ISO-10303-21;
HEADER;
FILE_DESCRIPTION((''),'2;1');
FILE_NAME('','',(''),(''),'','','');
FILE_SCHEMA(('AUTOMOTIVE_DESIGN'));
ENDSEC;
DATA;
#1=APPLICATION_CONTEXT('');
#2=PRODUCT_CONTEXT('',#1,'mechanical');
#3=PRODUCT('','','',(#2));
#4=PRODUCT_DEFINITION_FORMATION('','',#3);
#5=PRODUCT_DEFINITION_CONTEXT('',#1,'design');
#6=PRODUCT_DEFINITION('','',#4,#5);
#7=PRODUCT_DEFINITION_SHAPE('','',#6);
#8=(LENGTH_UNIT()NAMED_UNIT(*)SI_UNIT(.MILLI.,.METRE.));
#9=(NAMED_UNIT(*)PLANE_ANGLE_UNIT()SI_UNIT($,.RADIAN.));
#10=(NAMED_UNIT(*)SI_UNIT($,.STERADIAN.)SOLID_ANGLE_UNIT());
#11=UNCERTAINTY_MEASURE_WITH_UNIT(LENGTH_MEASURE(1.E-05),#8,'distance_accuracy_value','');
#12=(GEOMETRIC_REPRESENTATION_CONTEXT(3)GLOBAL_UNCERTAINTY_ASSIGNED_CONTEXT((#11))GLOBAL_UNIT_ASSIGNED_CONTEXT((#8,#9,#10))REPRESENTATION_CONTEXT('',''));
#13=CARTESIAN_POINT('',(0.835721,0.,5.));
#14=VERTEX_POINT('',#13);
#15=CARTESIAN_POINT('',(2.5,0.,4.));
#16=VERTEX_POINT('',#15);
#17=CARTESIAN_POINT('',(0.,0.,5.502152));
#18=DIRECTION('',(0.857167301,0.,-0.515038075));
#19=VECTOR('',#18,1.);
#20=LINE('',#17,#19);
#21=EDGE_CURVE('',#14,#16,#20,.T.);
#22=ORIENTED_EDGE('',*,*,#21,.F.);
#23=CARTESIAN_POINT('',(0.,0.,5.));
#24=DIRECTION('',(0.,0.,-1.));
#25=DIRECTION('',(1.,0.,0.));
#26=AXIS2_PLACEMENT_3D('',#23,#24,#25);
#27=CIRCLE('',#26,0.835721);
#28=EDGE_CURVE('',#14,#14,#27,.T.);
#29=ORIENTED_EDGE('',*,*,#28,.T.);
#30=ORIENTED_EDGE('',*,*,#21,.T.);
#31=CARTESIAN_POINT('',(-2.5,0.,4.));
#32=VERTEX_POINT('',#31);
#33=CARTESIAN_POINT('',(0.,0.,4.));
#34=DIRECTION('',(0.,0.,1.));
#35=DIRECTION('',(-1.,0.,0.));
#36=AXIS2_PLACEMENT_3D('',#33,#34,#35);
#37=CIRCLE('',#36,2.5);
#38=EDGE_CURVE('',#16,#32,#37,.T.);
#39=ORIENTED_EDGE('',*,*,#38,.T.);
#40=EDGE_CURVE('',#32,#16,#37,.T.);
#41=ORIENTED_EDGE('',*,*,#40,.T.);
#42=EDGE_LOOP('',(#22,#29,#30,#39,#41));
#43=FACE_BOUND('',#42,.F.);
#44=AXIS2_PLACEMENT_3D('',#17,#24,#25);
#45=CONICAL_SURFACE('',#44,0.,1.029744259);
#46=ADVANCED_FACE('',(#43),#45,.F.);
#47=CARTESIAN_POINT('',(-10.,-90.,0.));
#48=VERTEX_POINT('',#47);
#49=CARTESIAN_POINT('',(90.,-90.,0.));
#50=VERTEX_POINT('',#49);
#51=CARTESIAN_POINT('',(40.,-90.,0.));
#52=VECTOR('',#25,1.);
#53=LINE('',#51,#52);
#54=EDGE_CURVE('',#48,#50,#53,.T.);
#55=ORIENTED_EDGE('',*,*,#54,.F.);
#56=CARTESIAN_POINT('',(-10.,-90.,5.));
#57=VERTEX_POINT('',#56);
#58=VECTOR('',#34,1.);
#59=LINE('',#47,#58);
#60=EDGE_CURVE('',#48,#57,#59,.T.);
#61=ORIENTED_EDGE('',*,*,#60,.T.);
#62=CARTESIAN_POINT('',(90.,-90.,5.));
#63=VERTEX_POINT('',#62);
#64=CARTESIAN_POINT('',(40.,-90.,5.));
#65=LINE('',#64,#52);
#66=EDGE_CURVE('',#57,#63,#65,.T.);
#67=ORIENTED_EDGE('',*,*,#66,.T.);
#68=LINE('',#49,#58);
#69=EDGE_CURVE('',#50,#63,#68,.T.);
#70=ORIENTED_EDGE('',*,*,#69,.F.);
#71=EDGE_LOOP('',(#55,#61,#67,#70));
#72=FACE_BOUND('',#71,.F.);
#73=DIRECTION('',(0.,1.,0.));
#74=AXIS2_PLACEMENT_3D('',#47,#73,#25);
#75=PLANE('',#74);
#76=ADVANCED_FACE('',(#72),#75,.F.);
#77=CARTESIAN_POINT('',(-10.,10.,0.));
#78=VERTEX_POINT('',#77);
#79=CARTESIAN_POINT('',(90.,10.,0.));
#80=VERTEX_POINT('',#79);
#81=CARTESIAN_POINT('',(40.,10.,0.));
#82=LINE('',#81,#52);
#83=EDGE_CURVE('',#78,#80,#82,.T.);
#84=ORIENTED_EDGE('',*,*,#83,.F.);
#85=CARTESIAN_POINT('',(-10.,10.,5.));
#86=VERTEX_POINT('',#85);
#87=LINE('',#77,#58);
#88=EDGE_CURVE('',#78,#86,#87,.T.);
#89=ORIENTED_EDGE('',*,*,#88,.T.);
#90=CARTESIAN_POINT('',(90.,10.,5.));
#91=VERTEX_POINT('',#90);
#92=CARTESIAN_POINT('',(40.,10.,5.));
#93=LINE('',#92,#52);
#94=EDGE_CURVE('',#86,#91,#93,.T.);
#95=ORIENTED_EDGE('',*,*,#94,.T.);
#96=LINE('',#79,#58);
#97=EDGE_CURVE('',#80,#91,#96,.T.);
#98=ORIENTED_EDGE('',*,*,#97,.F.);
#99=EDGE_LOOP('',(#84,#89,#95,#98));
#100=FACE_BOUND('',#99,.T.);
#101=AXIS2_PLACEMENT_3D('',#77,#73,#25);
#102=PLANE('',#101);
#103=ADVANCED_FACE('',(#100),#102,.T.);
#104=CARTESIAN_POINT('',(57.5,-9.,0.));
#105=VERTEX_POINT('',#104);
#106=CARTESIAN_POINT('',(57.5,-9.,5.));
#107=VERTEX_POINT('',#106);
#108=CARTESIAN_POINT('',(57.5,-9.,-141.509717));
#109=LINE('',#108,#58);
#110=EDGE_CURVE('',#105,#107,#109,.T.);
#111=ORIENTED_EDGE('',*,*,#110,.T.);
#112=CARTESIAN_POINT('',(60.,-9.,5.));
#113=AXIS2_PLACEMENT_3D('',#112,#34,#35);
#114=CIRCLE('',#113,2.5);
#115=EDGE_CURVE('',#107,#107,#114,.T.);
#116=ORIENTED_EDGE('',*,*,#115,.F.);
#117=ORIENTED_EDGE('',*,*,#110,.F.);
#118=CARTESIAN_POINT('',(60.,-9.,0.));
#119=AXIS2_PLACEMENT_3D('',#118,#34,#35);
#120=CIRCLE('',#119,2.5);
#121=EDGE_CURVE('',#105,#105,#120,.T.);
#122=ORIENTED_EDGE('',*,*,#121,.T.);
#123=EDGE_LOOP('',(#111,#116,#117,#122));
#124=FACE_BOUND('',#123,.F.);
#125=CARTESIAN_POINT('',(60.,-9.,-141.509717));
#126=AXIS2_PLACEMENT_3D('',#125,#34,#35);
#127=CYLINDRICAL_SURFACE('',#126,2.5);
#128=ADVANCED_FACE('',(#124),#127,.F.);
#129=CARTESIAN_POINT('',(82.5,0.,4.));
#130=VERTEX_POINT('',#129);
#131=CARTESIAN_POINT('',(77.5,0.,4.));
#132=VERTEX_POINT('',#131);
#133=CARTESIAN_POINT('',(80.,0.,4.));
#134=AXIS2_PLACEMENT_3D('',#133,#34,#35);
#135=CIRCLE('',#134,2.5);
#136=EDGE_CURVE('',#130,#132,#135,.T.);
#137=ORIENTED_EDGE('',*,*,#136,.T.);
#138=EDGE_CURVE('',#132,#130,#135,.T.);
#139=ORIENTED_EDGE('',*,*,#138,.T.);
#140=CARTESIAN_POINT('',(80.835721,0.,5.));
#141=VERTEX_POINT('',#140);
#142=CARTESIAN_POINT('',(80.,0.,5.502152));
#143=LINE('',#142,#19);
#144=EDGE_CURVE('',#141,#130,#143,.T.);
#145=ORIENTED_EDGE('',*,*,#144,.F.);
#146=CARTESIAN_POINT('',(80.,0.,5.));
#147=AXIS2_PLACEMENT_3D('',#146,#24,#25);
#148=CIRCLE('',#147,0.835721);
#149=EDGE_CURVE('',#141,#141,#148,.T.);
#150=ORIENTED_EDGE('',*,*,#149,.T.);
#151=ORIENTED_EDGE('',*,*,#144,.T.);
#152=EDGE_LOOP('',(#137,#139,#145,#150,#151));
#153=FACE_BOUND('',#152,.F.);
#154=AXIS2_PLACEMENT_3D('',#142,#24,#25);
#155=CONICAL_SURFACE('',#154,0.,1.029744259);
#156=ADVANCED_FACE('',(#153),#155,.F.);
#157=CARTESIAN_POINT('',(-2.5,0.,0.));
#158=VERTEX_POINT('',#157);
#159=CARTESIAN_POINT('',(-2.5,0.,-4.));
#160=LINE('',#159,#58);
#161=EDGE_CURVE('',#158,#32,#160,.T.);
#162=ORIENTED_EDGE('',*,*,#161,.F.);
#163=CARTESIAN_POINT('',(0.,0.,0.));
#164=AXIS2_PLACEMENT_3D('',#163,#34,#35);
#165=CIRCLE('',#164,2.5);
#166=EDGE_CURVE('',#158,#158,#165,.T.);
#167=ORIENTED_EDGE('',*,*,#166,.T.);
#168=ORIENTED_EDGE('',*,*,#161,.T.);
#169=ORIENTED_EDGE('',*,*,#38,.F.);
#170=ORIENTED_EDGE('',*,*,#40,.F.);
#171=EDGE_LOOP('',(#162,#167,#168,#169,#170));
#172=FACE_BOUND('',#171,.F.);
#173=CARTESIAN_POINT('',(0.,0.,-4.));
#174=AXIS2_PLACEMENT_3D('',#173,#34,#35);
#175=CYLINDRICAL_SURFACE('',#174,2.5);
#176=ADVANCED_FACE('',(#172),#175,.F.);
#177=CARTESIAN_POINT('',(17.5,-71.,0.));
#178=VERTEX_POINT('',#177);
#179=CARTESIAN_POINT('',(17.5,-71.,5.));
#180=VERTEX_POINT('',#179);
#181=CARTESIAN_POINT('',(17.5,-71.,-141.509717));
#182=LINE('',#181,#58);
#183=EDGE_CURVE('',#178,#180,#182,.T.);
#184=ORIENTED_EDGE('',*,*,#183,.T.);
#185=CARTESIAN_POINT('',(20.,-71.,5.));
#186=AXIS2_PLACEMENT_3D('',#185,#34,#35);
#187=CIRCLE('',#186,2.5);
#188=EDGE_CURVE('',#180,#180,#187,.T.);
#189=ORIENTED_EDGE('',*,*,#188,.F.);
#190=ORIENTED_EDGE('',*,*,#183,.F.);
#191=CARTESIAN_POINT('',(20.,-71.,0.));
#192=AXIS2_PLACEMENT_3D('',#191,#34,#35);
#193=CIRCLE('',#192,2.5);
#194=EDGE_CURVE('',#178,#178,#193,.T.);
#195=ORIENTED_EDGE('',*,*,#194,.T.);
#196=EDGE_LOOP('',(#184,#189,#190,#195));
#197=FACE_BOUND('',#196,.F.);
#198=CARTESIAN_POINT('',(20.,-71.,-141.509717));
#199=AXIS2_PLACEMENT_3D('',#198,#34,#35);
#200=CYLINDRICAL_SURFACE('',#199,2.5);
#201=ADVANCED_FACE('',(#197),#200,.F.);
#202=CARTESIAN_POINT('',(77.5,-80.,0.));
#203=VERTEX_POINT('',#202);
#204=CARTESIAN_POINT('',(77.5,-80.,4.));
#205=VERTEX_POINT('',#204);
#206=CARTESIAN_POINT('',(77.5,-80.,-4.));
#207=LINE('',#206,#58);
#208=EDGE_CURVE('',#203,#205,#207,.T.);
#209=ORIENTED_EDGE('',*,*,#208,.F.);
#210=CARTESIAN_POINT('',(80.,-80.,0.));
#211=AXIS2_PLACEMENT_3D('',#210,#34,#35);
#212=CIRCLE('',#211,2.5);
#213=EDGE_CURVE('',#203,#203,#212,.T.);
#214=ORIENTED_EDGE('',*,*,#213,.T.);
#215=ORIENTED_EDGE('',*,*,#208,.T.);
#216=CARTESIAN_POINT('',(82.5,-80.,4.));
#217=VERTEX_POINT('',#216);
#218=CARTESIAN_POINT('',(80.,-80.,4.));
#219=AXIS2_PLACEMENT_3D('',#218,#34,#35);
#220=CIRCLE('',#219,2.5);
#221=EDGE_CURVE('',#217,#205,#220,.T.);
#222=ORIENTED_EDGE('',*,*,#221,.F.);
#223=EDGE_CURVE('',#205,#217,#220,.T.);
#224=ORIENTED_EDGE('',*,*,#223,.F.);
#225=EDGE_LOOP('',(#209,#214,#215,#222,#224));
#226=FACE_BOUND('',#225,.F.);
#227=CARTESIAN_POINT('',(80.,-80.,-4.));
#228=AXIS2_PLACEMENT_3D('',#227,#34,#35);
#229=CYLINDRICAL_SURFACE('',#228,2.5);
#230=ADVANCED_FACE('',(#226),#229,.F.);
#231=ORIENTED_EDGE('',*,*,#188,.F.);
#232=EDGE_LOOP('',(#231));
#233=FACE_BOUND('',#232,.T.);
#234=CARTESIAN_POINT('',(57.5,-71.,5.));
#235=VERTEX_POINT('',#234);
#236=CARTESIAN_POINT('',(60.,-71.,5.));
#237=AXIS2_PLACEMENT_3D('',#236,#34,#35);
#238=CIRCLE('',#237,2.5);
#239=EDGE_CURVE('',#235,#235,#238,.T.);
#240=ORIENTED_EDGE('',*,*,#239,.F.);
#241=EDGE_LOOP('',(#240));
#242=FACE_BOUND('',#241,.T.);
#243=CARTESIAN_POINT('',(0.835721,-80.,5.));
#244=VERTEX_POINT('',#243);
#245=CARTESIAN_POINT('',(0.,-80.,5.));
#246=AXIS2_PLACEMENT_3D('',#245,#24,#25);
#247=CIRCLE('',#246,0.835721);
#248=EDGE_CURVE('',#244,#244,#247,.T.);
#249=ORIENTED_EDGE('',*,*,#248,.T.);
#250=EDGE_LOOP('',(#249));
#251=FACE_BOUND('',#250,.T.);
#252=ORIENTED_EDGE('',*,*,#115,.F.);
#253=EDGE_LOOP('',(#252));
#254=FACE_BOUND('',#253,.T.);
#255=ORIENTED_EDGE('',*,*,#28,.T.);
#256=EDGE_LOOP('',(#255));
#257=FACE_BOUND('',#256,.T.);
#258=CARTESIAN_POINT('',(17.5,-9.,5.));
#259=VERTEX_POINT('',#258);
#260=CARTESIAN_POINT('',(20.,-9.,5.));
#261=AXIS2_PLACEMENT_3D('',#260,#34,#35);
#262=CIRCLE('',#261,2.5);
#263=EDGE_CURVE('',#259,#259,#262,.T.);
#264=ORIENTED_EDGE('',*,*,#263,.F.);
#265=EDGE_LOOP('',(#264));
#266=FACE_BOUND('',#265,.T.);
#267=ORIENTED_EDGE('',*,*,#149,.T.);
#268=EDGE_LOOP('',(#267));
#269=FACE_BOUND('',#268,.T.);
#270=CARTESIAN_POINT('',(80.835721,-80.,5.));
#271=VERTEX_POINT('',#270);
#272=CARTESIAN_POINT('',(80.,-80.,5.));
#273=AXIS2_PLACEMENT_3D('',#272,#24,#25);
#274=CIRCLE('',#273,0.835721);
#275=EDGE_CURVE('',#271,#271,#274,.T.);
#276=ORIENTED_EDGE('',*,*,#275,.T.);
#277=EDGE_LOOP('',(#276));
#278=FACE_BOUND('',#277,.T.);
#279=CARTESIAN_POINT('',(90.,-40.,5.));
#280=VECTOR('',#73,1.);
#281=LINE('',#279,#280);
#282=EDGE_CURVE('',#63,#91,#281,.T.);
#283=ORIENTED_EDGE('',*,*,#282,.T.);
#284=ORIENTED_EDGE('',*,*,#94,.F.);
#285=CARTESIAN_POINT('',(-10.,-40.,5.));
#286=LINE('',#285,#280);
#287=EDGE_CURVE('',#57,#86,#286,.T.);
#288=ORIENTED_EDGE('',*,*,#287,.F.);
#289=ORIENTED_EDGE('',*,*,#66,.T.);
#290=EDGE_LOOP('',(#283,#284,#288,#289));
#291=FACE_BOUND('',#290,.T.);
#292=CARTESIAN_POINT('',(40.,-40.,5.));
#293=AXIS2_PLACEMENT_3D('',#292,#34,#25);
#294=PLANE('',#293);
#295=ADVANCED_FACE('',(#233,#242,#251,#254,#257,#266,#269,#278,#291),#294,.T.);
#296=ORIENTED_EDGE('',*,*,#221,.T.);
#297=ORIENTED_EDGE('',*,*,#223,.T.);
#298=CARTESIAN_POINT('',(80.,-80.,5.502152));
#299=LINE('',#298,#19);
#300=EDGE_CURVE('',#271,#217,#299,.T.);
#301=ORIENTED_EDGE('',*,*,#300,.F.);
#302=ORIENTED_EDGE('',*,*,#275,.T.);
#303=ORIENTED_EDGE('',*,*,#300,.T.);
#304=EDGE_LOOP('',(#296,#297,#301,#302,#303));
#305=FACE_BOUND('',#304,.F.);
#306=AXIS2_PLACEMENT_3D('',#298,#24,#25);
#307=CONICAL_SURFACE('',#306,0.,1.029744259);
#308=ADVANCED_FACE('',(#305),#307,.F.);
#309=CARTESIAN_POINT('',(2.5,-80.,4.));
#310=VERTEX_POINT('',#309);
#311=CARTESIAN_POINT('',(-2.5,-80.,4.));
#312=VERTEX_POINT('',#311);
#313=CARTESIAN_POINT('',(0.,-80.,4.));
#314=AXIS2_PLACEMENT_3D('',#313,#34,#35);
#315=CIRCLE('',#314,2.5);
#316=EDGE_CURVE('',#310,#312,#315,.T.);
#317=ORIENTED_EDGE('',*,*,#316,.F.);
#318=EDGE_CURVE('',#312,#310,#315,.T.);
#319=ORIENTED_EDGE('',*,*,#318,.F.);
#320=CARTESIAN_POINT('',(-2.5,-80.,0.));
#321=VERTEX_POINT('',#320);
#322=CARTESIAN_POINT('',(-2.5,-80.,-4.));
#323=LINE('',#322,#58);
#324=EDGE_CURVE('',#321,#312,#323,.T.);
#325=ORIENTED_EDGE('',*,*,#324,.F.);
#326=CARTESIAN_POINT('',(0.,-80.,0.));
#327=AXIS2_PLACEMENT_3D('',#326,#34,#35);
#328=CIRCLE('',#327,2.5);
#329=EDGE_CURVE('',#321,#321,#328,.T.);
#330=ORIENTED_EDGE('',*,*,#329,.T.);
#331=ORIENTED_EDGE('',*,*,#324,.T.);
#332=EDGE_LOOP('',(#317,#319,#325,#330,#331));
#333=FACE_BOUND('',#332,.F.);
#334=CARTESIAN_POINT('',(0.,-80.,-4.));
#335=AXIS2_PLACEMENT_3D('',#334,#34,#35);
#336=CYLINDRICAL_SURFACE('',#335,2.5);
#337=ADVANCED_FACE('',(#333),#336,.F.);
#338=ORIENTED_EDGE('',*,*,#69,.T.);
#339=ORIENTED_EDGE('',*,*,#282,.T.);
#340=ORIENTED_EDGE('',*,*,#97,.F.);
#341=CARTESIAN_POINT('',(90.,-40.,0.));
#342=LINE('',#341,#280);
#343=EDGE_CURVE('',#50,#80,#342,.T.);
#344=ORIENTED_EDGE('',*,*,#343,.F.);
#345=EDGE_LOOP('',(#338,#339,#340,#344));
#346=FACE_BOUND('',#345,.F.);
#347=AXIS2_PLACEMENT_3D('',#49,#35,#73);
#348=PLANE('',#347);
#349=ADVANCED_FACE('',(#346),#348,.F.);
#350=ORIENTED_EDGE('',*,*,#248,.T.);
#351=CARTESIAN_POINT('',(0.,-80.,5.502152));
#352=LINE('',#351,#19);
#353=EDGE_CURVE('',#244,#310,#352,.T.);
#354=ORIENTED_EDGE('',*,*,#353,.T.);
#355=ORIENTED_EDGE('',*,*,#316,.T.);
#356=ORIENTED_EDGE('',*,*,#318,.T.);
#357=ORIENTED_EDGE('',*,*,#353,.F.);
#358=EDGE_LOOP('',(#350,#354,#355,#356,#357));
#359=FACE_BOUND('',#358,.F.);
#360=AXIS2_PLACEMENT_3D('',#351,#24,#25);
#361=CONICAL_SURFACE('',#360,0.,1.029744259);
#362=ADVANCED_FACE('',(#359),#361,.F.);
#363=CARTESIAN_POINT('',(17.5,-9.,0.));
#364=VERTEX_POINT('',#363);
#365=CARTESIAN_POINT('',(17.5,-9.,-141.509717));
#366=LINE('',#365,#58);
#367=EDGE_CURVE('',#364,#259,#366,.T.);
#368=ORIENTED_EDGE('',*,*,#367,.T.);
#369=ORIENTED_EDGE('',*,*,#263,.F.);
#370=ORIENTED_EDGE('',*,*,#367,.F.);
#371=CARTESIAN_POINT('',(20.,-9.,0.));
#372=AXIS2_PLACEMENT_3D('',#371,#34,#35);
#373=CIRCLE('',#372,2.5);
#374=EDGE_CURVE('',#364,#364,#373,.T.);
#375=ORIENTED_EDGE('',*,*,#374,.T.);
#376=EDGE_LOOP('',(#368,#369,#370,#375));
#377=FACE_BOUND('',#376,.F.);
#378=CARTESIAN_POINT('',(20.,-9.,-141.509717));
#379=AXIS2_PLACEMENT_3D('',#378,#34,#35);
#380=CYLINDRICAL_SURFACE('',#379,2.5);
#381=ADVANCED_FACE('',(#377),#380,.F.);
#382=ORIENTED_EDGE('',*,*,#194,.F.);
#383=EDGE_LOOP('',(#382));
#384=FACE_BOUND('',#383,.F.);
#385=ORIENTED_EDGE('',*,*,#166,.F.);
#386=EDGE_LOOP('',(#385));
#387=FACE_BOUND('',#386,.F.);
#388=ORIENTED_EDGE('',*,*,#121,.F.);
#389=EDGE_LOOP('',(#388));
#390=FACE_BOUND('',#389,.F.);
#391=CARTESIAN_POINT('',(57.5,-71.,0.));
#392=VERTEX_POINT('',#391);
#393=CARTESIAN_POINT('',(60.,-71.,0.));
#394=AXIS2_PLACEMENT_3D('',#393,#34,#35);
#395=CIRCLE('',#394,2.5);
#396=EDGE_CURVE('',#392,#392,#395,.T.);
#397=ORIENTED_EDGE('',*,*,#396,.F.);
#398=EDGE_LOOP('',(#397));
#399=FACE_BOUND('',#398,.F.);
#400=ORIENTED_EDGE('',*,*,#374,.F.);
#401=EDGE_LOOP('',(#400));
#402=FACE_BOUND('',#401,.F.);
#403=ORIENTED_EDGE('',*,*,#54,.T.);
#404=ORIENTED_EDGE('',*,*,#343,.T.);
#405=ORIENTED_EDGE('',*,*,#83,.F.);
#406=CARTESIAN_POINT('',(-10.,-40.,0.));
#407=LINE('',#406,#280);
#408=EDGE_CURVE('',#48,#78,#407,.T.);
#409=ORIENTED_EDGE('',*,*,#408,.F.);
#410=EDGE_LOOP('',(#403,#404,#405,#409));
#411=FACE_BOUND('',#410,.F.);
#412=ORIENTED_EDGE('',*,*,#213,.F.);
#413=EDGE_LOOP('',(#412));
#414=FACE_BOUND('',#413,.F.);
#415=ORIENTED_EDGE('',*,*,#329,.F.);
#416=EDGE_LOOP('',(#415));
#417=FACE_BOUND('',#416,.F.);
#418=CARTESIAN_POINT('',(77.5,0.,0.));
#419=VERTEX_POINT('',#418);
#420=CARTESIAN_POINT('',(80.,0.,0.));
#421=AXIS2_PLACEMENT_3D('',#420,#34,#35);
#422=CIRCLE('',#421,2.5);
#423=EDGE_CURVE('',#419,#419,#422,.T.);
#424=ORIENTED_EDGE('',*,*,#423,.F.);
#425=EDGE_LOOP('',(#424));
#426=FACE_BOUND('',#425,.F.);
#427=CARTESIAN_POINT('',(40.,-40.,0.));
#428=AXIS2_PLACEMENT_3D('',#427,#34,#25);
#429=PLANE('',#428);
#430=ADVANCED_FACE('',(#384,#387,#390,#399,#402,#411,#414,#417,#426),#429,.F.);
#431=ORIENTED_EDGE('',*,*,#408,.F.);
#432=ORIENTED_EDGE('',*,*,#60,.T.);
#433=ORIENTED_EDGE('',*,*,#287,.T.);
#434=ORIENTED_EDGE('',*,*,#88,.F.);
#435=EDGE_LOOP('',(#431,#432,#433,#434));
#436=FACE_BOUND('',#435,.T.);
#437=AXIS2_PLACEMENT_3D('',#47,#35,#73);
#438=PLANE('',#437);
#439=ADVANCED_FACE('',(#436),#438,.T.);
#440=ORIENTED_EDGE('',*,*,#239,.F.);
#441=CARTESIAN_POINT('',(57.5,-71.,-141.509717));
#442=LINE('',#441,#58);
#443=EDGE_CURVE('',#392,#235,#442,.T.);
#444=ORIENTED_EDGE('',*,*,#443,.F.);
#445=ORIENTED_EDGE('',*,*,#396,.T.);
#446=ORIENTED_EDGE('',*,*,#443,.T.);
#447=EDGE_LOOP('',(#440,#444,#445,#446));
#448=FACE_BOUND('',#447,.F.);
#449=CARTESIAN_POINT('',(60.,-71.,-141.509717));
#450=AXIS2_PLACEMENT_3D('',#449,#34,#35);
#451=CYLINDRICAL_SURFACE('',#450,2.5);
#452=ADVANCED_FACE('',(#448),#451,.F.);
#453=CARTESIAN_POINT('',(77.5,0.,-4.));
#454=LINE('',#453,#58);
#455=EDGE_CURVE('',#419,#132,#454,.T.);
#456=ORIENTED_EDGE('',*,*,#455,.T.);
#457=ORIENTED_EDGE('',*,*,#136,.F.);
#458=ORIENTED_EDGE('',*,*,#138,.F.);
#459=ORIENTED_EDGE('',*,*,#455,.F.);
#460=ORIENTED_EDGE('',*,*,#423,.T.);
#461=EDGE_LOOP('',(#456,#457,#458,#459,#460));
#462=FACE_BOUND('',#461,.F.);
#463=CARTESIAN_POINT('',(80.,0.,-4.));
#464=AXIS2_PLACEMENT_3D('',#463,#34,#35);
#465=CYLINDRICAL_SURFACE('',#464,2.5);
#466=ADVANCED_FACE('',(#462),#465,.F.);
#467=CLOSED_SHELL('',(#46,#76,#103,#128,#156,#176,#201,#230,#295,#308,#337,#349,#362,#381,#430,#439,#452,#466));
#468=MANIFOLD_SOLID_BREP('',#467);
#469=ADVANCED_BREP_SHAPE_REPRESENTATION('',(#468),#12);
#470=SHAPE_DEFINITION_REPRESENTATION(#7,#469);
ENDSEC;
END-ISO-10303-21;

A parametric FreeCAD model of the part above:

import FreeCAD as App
import Part
import Sketcher

doc = App.newDocument("Part")
body = doc.addObject("PartDesign::Body", "Body")

# Sketch on XY plane
sketch1 = doc.addObject("Sketcher::SketchObject", "Sketch")
body.addObject(sketch1)
sketch1.AttachmentSupport = (doc.XY_Plane, [""])
sketch1.MapMode = "FlatFace"
sketch1.addGeometry(Part.LineSegment(App.Vector(-10, 10, 0), App.Vector(-10, -90, 0)), False)
sketch1.addGeometry(Part.LineSegment(App.Vector(-10, -90, 0), App.Vector(90, -90, 0)), False)
sketch1.addGeometry(Part.LineSegment(App.Vector(90, -90, 0), App.Vector(90, 10, 0)), False)
sketch1.addGeometry(Part.LineSegment(App.Vector(90, 10, 0), App.Vector(-10, 10, 0)), False)
sketch1.addConstraint(Sketcher.Constraint("Coincident", 0, 2, 1, 1))
sketch1.addConstraint(Sketcher.Constraint("Coincident", 1, 2, 2, 1))
sketch1.addConstraint(Sketcher.Constraint("Coincident", 2, 2, 3, 1))
sketch1.addConstraint(Sketcher.Constraint("Coincident", 3, 2, 0, 1))
sketch1.addConstraint(Sketcher.Constraint("Vertical", 0))
sketch1.addConstraint(Sketcher.Constraint("Horizontal", 1))
sketch1.addConstraint(Sketcher.Constraint("Vertical", 2))
sketch1.addConstraint(Sketcher.Constraint("Horizontal", 3))
sketch1.addConstraint(Sketcher.Constraint("Equal", 3, 0))
sketch1.addConstraint(Sketcher.Constraint("DistanceX", 1, 1, 1, 2, 100.0))
sketch1.addConstraint(Sketcher.Constraint("DistanceX", 0, 2, -1, 1, 10.0))
sketch1.addConstraint(Sketcher.Constraint("DistanceY", 0, 2, -1, 1, 90.0))
pad1 = doc.addObject("PartDesign::Pad", "Pad")
body.addObject(pad1)
pad1.Profile = sketch1
pad1.Length = 5

# Sketch on XY plane
sketch2 = doc.addObject("Sketcher::SketchObject", "Sketch001")
body.addObject(sketch2)
sketch2.AttachmentSupport = (doc.XY_Plane, [""])
sketch2.MapMode = "FlatFace"
sketch2.addGeometry(Part.Circle(App.Vector(20, -9, 0), App.Vector(0, 0, 1), 2.5), False)
sketch2.addGeometry(Part.Circle(App.Vector(60, -9, 0), App.Vector(0, 0, 1), 2.5), False)
sketch2.addGeometry(Part.Circle(App.Vector(60, -71, 0), App.Vector(0, 0, 1), 2.5), False)
sketch2.addGeometry(Part.Circle(App.Vector(20, -71, 0), App.Vector(0, 0, 1), 2.5), False)
sketch2.addConstraint(Sketcher.Constraint("Equal", 0, 1))
sketch2.addConstraint(Sketcher.Constraint("Equal", 1, 2))
sketch2.addConstraint(Sketcher.Constraint("Equal", 2, 3))
sketch2.addConstraint(Sketcher.Constraint("Horizontal", 0, 3, 1, 3))
sketch2.addConstraint(Sketcher.Constraint("Horizontal", 2, 3, 3, 3))
sketch2.addConstraint(Sketcher.Constraint("Vertical", 1, 3, 2, 3))
sketch2.addConstraint(Sketcher.Constraint("Vertical", 0, 3, 3, 3))
sketch2.addConstraint(Sketcher.Constraint("Diameter", 0, 5.0))
sketch2.addConstraint(Sketcher.Constraint("DistanceX", -1, 1, 0, 3, 20.0))
sketch2.addConstraint(Sketcher.Constraint("DistanceY", 0, 3, -1, 1, 9.0))
sketch2.addConstraint(Sketcher.Constraint("DistanceX", -1, 1, 1, 3, 60.0))
sketch2.addConstraint(Sketcher.Constraint("DistanceY", 2, 3, -1, 1, 71.0))
doc.recompute()
hole = doc.addObject("PartDesign::Hole", "Hole")
body.addObject(hole)
hole.Profile = sketch2
hole.ThreadType = "None"
hole.Diameter = 5
hole.DepthType = "ThroughAll"
hole.Reversed = True

# Sketch on XY plane
sketch3 = doc.addObject("Sketcher::SketchObject", "Sketch002")
body.addObject(sketch3)
sketch3.AttachmentSupport = (doc.XY_Plane, [""])
sketch3.MapMode = "FlatFace"
sketch3.addGeometry(Part.Circle(App.Vector(0, -80, 0), App.Vector(0, 0, 1), 2.5), False)
sketch3.addGeometry(Part.Circle(App.Vector(80, -80, 0), App.Vector(0, 0, 1), 2.5), False)
sketch3.addGeometry(Part.Circle(App.Vector(80, 0, 0), App.Vector(0, 0, 1), 2.5), False)
sketch3.addGeometry(Part.Circle(App.Vector(0, 0, 0), App.Vector(0, 0, 1), 2.5), False)
sketch3.addConstraint(Sketcher.Constraint("Coincident", 3, 3, -1, 1))
sketch3.addConstraint(Sketcher.Constraint("Equal", 0, 1))
sketch3.addConstraint(Sketcher.Constraint("Equal", 1, 2))
sketch3.addConstraint(Sketcher.Constraint("Equal", 2, 3))
sketch3.addConstraint(Sketcher.Constraint("PointOnObject", 0, 3, -2))
sketch3.addConstraint(Sketcher.Constraint("PointOnObject", 2, 3, -1))
sketch3.addConstraint(Sketcher.Constraint("Horizontal", 0, 3, 1, 3))
sketch3.addConstraint(Sketcher.Constraint("Vertical", 1, 3, 2, 3))
sketch3.addConstraint(Sketcher.Constraint("Diameter", 0, 5.0))
sketch3.addConstraint(Sketcher.Constraint("DistanceY", 0, 3, -1, 1, 80.0))
sketch3.addConstraint(Sketcher.Constraint("DistanceX", -1, 1, 1, 3, 80.0))
doc.recompute()
hole2 = doc.addObject("PartDesign::Hole", "Hole001")
body.addObject(hole2)
hole2.Profile = sketch3
hole2.ThreadType = "None"
hole2.Diameter = 5
hole2.DepthType = "Dimension"
hole2.Depth = 4
hole2.DrillPoint = "Angled"
hole2.DrillPointAngle = 118
hole2.Reversed = True

doc.recompute()
